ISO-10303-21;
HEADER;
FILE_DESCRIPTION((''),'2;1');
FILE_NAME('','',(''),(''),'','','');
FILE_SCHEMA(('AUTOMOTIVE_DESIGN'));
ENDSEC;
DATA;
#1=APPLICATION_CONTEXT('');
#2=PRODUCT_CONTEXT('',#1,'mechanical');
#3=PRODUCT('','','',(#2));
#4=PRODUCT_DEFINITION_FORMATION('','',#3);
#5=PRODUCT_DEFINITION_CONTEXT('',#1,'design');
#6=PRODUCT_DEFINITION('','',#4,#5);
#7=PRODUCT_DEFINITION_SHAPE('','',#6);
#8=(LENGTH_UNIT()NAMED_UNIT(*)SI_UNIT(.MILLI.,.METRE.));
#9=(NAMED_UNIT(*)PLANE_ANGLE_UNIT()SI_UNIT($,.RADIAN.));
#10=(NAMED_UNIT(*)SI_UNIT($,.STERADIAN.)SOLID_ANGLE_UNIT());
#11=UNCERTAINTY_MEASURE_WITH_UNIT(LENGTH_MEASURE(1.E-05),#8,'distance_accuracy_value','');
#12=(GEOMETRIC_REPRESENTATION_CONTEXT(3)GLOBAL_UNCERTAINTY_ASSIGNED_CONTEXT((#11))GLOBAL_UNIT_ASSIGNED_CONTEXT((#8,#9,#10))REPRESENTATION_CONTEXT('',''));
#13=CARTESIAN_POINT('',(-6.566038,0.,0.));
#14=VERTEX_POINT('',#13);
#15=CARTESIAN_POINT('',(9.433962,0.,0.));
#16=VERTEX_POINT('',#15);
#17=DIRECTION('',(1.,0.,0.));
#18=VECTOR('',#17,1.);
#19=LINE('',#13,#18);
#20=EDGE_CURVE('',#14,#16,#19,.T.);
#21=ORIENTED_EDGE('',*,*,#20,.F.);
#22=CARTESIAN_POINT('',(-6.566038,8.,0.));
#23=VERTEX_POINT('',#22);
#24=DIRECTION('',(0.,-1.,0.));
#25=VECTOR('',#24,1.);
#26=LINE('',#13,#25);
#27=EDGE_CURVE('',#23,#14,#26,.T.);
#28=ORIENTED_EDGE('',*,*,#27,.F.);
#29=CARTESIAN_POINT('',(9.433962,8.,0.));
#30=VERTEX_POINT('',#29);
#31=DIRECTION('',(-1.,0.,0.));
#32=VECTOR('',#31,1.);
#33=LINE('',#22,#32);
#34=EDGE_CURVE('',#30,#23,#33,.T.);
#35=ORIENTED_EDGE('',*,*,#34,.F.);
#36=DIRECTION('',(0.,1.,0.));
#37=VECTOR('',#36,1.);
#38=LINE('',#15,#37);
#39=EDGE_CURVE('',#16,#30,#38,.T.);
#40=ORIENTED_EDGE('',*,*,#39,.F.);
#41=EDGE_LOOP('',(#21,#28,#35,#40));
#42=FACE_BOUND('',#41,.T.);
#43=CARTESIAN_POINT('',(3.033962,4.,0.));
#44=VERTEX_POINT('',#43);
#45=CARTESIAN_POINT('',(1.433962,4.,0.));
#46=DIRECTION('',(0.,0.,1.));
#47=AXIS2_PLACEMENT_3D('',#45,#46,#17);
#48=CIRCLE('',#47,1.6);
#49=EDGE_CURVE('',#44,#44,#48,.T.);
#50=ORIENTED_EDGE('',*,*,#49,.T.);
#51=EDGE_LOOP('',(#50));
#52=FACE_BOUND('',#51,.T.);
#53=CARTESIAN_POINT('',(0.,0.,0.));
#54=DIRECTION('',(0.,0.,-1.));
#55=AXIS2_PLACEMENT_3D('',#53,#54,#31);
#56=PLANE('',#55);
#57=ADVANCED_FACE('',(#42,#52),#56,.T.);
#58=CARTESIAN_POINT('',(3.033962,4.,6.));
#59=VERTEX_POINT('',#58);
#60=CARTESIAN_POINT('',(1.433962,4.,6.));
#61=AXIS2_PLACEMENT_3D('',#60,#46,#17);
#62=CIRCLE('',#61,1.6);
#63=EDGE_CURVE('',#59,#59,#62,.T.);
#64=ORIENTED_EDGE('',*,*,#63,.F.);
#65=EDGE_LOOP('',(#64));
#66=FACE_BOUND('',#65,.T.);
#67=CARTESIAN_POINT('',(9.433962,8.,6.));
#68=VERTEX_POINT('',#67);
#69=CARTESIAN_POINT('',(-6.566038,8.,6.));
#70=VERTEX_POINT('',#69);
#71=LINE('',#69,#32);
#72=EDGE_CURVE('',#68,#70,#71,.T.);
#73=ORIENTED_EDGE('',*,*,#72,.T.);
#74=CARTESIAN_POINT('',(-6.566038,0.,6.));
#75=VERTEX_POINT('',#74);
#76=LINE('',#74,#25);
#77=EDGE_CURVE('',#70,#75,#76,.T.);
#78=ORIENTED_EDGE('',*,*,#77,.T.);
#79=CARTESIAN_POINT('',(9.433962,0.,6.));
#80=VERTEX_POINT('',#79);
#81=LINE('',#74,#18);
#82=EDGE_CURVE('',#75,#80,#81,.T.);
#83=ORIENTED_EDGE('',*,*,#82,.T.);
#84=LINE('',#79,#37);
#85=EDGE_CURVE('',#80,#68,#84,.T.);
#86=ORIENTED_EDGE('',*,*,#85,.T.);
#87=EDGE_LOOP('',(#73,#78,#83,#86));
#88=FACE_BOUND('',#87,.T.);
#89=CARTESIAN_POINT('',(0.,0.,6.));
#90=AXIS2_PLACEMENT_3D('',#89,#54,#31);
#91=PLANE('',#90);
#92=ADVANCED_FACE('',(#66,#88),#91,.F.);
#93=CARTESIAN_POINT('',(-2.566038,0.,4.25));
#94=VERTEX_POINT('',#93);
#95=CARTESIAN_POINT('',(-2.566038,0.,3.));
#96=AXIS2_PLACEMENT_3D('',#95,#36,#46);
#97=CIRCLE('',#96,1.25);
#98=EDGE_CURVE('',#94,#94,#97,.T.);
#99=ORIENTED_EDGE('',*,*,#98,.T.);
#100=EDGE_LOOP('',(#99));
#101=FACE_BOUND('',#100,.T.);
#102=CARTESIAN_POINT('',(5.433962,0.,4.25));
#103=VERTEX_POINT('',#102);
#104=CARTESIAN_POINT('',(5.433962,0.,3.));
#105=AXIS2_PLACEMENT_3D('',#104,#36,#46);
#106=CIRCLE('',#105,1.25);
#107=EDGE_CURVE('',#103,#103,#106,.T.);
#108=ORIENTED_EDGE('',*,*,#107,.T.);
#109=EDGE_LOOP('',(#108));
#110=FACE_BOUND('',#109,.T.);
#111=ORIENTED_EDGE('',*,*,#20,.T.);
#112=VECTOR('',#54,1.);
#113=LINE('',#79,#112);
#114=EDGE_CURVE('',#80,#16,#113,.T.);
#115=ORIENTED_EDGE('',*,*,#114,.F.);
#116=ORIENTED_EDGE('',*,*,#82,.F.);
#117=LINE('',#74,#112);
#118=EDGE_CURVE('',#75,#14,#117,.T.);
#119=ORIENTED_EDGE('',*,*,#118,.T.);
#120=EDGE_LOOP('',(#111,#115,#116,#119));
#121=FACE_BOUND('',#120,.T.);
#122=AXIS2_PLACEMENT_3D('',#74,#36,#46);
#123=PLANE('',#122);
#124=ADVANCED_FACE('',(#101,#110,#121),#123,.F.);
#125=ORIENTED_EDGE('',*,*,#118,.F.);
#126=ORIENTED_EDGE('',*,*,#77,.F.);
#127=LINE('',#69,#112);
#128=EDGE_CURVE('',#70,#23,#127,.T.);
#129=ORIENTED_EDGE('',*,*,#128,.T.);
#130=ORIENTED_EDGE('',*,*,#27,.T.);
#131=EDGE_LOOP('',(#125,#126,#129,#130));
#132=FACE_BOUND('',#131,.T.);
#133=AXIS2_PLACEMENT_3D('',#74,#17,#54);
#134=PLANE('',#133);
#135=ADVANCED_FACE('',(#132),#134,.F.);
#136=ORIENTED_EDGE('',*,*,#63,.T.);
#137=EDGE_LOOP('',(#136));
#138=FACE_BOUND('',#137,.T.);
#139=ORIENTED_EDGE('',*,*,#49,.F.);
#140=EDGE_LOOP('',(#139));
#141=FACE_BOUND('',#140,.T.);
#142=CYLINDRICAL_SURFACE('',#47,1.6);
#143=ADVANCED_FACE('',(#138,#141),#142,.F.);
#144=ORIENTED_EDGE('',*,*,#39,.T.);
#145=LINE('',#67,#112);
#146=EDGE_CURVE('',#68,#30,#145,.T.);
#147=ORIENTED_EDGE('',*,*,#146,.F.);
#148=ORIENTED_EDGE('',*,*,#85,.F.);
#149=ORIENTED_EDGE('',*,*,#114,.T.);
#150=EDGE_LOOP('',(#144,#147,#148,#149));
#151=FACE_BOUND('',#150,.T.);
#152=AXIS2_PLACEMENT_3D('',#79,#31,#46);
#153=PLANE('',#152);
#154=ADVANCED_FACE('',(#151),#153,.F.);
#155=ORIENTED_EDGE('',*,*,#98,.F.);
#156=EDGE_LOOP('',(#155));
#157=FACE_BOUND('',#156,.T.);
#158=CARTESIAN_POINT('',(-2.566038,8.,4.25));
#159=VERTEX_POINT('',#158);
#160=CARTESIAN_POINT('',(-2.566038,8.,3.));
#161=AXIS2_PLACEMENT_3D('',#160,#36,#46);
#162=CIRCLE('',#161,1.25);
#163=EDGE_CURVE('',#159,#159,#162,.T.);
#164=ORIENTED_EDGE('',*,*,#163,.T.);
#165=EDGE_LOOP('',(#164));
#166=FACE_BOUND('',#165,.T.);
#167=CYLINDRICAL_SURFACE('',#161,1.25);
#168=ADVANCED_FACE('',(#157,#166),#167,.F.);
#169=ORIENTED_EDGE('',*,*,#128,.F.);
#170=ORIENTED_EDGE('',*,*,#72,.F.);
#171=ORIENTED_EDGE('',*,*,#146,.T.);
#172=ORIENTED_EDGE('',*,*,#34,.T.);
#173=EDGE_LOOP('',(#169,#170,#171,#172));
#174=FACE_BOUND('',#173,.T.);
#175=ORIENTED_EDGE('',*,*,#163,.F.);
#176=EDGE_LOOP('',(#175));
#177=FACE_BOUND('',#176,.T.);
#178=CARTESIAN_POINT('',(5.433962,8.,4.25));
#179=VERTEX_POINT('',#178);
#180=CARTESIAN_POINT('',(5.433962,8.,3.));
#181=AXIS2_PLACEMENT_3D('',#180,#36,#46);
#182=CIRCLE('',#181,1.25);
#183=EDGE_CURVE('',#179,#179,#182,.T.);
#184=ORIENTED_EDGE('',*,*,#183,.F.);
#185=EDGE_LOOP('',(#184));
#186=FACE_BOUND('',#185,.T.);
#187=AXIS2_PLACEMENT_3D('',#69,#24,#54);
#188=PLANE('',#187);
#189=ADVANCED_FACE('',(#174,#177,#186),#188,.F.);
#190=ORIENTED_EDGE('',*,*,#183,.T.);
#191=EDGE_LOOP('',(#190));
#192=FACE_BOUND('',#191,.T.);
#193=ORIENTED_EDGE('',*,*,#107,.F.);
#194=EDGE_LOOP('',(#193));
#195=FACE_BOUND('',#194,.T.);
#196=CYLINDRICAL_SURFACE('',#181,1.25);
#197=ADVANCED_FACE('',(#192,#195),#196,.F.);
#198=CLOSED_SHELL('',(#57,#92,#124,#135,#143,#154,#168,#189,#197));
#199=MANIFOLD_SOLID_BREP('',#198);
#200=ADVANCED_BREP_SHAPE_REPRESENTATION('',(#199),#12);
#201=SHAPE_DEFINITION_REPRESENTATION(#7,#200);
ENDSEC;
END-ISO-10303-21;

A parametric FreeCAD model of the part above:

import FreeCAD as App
import Part
import Sketcher

doc = App.newDocument("Part")
body = doc.addObject("PartDesign::Body", "Body")

sketch1 = doc.addObject("Sketcher::SketchObject", "Sketch")
body.addObject(sketch1)
sketch1.AttachmentSupport = (doc.XY_Plane, [""])
sketch1.MapMode = "FlatFace"
sketch1.addGeometry(Part.LineSegment(App.Vector(-7, 8, 0), App.Vector(-7, 0, 0)), False)
sketch1.addGeometry(Part.LineSegment(App.Vector(-7, 0, 0), App.Vector(9, 0, 0)), False)
sketch1.addGeometry(Part.LineSegment(App.Vector(9, 0, 0), App.Vector(9, 8, 0)), False)
sketch1.addGeometry(Part.LineSegment(App.Vector(9, 8, 0), App.Vector(-7, 8, 0)), False)
sketch1.addConstraint(Sketcher.Constraint("Coincident", 0, 2, 1, 1))
sketch1.addConstraint(Sketcher.Constraint("Coincident", 1, 2, 2, 1))
sketch1.addConstraint(Sketcher.Constraint("Coincident", 2, 2, 3, 1))
sketch1.addConstraint(Sketcher.Constraint("Coincident", 3, 2, 0, 1))
sketch1.addConstraint(Sketcher.Constraint("Vertical", 0))
sketch1.addConstraint(Sketcher.Constraint("Horizontal", 1))
sketch1.addConstraint(Sketcher.Constraint("Vertical", 2))
sketch1.addConstraint(Sketcher.Constraint("Horizontal", 3))
sketch1.addConstraint(Sketcher.Constraint("PointOnObject", 0, 2, -1))
sketch1.addConstraint(Sketcher.Constraint("DistanceX", 1, 1, 1, 2, 16.0))
sketch1.addConstraint(Sketcher.Constraint("DistanceY", 0, 2, 0, 1, 8.0))
sketch1.addConstraint(Sketcher.Constraint("DistanceX", 0, 2, -1, 1, 6.566038))
pad1 = doc.addObject("PartDesign::Pad", "Pad")
body.addObject(pad1)
pad1.Profile = sketch1
pad1.Length = 6

sketch2 = doc.addObject("Sketcher::SketchObject", "Sketch001")
body.addObject(sketch2)
sketch2.AttachmentSupport = (doc.XZ_Plane, [""])
sketch2.MapMode = "FlatFace"
sketch2.AttachmentOffset = App.Placement(App.Vector(0, 0, -8), App.Rotation())
sketch2.addGeometry(Part.Circle(App.Vector(-2.6, 3, 0), App.Vector(0, 0, 1), 1.2), False)
sketch2.addGeometry(Part.Circle(App.Vector(5.4, 3, 0), App.Vector(0, 0, 1), 1.2), False)
sketch2.addConstraint(Sketcher.Constraint("Equal", 0, 1))
sketch2.addConstraint(Sketcher.Constraint("Horizontal", 0, 3, 1, 3))
sketch2.addConstraint(Sketcher.Constraint("Diameter", 0, 2.5))
sketch2.addConstraint(Sketcher.Constraint("DistanceY", -1, 1, 0, 3, 3.0))
sketch2.addConstraint(Sketcher.Constraint("DistanceX", 0, 3, 1, 3, 8.0))
sketch2.addConstraint(Sketcher.Constraint("DistanceX", 0, 3, -1, 1, 2.566038))
doc.recompute()
hole = doc.addObject("PartDesign::Hole", "Hole")
body.addObject(hole)
hole.Profile = sketch2
hole.ThreadType = "None"
hole.Diameter = 2.5
hole.DepthType = "ThroughAll"
hole.Reversed = True

sketch3 = doc.addObject("Sketcher::SketchObject", "Sketch002")
body.addObject(sketch3)
sketch3.AttachmentSupport = (doc.XY_Plane, [""])
sketch3.MapMode = "FlatFace"
sketch3.AttachmentOffset = App.Placement(App.Vector(0, 0, 6), App.Rotation())
sketch3.addGeometry(Part.Circle(App.Vector(1.4, 4, 0), App.Vector(0, 0, 1), 1.6), False)
sketch3.addConstraint(Sketcher.Constraint("Diameter", 0, 3.2))
sketch3.addConstraint(Sketcher.Constraint("DistanceY", -1, 1, 0, 3, 4.0))
sketch3.addConstraint(Sketcher.Constraint("DistanceX", -1, 1, 0, 3, 1.433962))
pocket1 = doc.addObject("PartDesign::Pocket", "Pocket")
body.addObject(pocket1)
pocket1.Profile = sketch3
pocket1.Length = 6

doc.recompute()
